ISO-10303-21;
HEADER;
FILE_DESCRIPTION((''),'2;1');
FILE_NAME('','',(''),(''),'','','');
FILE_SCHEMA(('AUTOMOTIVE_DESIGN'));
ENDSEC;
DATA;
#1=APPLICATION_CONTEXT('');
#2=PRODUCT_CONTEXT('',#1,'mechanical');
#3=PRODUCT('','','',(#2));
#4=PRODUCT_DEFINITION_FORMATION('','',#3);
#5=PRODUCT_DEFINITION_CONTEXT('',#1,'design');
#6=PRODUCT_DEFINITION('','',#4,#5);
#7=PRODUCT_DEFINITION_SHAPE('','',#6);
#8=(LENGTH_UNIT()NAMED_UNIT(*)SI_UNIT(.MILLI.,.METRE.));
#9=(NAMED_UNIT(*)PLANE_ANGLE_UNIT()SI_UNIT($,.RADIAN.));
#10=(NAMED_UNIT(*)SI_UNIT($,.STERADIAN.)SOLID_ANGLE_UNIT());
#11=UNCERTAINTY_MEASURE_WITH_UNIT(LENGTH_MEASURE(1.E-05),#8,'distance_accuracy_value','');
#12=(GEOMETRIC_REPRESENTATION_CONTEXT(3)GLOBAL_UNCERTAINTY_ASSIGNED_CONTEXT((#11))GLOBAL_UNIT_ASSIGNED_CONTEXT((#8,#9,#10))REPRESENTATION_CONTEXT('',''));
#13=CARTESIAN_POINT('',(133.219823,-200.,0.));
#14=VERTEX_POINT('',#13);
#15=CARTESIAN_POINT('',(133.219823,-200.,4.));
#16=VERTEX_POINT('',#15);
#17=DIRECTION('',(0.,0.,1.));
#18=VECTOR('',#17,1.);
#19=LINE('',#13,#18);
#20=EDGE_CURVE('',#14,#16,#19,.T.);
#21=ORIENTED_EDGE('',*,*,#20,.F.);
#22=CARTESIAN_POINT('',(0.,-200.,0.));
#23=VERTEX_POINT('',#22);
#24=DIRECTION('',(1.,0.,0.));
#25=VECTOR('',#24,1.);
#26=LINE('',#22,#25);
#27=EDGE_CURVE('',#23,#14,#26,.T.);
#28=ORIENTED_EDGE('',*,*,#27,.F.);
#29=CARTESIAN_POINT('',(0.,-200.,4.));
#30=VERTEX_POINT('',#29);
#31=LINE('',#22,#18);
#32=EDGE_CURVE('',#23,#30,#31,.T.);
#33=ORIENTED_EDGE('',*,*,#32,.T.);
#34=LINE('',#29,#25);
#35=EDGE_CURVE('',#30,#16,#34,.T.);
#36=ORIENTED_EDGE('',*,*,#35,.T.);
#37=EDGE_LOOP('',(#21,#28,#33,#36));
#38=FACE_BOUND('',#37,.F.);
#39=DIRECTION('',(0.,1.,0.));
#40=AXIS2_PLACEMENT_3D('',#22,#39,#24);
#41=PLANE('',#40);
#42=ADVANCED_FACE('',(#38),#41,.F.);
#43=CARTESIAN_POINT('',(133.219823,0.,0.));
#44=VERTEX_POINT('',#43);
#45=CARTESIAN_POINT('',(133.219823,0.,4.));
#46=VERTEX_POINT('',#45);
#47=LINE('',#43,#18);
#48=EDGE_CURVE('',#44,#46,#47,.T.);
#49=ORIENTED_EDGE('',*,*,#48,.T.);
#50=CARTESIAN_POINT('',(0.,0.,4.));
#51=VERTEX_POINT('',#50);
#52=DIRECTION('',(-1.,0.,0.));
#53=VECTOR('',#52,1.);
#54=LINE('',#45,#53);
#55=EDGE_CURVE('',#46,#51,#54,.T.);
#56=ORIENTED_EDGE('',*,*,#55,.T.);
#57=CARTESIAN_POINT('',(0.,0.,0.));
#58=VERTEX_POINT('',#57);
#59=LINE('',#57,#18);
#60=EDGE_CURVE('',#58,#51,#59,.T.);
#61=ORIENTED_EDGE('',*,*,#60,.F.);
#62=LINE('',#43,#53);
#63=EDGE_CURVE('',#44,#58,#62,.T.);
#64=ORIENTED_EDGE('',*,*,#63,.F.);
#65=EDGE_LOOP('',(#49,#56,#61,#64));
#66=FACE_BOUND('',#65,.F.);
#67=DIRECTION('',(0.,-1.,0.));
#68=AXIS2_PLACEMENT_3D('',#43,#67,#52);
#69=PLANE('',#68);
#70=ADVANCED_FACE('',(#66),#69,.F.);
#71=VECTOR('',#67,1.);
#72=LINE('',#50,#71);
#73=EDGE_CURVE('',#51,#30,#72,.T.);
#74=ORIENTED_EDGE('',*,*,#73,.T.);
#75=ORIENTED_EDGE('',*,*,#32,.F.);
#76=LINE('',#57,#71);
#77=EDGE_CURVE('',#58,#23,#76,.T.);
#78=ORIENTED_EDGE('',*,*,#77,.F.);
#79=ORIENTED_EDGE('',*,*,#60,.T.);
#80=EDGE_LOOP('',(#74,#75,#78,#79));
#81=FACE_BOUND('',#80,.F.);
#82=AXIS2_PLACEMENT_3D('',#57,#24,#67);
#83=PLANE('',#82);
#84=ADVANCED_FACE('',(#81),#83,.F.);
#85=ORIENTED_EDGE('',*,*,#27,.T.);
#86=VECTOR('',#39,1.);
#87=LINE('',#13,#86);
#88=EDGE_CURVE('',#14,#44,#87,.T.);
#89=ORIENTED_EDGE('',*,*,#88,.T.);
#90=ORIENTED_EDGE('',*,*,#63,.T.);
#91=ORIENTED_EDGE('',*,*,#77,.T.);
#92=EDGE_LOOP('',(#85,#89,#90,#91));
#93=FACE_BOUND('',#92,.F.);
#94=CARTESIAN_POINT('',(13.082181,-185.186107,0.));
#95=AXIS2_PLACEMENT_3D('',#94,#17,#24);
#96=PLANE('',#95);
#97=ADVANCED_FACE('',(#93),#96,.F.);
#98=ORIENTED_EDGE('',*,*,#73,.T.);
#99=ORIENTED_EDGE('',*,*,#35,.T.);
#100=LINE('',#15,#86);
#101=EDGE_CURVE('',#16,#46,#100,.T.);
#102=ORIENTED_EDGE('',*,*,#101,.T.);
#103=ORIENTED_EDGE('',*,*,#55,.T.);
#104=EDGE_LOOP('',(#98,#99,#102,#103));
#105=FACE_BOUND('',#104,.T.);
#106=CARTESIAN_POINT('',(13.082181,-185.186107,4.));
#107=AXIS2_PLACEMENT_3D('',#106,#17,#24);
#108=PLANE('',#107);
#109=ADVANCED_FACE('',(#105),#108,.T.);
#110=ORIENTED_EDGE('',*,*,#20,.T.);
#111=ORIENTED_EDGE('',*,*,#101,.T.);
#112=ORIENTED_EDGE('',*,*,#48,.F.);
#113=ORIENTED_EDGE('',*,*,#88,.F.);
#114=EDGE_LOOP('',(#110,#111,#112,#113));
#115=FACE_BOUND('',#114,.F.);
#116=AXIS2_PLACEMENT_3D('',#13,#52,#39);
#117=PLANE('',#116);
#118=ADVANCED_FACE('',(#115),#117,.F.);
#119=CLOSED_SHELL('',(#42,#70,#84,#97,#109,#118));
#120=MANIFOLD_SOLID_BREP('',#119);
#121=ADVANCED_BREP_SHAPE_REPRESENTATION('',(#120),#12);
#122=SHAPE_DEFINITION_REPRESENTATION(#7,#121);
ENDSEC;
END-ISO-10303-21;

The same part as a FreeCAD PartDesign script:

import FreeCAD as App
import Part
import Sketcher
from FreeCAD import Vector

doc = App.newDocument("Part")
params = doc.addObject("Spreadsheet::Sheet", "Params")
for row, (alias, value) in enumerate([
    ("sketch1_height", "200 mm"),
    ("pad1_length", "4 mm"),
], start=1):
    params.set(f"A{row}", alias)
    params.set(f"B{row}", "=" + value)
    params.setAlias(f"B{row}", alias)

body = doc.addObject("PartDesign::Body", "Body")

sketch1 = doc.addObject("Sketcher::SketchObject", "Sketch")
body.addObject(sketch1)
sketch1.AttachmentSupport = (doc.XY_Plane, [""])
sketch1.MapMode = "FlatFace"
sketch1.addGeometry([
    Part.LineSegment(Vector(0, 0, 0), Vector(0, -200, 0)),
    Part.LineSegment(Vector(0, -200, 0), Vector(133, -200, 0)),
    Part.LineSegment(Vector(133, -200, 0), Vector(133, 0, 0)),
    Part.LineSegment(Vector(133, 0, 0), Vector(0, 0, 0)),
], False)
sketch1.addConstraint([
    Sketcher.Constraint("Coincident", 0, 2, 1, 1),
    Sketcher.Constraint("Coincident", 1, 2, 2, 1),
    Sketcher.Constraint("Coincident", 2, 2, 3, 1),
    Sketcher.Constraint("Coincident", 3, 2, 0, 1),
    Sketcher.Constraint("Vertical", 0),
    Sketcher.Constraint("Horizontal", 1),
    Sketcher.Constraint("Vertical", 2),
    Sketcher.Constraint("Horizontal", 3),
    Sketcher.Constraint("Coincident", 3, 2, -1, 1),
    Sketcher.Constraint("DistanceY", 0, 2, 0, 1, 200.0),
    Sketcher.Constraint("DistanceX", 1, 1, 1, 2, 133.219823),
])
sketch1.setExpression("Constraints[9]", "Params.sketch1_height")
pad1 = doc.addObject("PartDesign::Pad", "Pad")
body.addObject(pad1)
pad1.Profile = sketch1
pad1.setExpression("Length", "Params.pad1_length")

doc.recompute()
